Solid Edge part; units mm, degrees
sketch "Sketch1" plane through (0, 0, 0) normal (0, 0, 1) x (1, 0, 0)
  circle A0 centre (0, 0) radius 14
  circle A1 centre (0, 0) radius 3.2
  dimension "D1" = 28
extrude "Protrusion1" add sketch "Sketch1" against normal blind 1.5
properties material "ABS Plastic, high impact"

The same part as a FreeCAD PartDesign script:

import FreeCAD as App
import Part
import Sketcher
from FreeCAD import Vector
Q = App.Units.Quantity

doc = App.newDocument("Part")
params = doc.addObject("Spreadsheet::Sheet", "Params")
for row, (alias, value) in enumerate([
    ("sketch1_diameter", "28 mm"),
    ("sketch1_diameter2", "6.4 mm"),
    ("pad1_length", "1.5 mm"),
], start=1):
    params.set(f"A{row}", alias)
    params.set(f"B{row}", "=" + value)
    params.setAlias(f"B{row}", alias)

body = doc.addObject("PartDesign::Body", "Body")

sketch1 = doc.addObject("Sketcher::SketchObject", "Sketch")
body.addObject(sketch1)
sketch1.AttachmentSupport = (doc.XY_Plane, [""])
sketch1.MapMode = "FlatFace"
sketch1.addGeometry([
    Part.Circle(Vector(0, 0, 0), Vector(0, 0, 1), 14),
    Part.Circle(Vector(0, 0, 0), Vector(0, 0, 1), 3.2),
], False)
sketch1.addConstraint([
    Sketcher.Constraint("Coincident", 0, 3, -1, 1),
    Sketcher.Constraint("Coincident", 1, 3, -1, 1),
    Sketcher.Constraint("Diameter", 0, Q("28 mm")),
    Sketcher.Constraint("Diameter", 1, Q("6.4 mm")),
])
sketch1.setExpression("Constraints[2]", "Params.sketch1_diameter")
sketch1.setExpression("Constraints[3]", "Params.sketch1_diameter2")
pad1 = doc.addObject("PartDesign::Pad", "Pad")
body.addObject(pad1)
pad1.Profile = sketch1
pad1.setExpression("Length", "Params.pad1_length")
pad1.Reversed = True

doc.recompute()
